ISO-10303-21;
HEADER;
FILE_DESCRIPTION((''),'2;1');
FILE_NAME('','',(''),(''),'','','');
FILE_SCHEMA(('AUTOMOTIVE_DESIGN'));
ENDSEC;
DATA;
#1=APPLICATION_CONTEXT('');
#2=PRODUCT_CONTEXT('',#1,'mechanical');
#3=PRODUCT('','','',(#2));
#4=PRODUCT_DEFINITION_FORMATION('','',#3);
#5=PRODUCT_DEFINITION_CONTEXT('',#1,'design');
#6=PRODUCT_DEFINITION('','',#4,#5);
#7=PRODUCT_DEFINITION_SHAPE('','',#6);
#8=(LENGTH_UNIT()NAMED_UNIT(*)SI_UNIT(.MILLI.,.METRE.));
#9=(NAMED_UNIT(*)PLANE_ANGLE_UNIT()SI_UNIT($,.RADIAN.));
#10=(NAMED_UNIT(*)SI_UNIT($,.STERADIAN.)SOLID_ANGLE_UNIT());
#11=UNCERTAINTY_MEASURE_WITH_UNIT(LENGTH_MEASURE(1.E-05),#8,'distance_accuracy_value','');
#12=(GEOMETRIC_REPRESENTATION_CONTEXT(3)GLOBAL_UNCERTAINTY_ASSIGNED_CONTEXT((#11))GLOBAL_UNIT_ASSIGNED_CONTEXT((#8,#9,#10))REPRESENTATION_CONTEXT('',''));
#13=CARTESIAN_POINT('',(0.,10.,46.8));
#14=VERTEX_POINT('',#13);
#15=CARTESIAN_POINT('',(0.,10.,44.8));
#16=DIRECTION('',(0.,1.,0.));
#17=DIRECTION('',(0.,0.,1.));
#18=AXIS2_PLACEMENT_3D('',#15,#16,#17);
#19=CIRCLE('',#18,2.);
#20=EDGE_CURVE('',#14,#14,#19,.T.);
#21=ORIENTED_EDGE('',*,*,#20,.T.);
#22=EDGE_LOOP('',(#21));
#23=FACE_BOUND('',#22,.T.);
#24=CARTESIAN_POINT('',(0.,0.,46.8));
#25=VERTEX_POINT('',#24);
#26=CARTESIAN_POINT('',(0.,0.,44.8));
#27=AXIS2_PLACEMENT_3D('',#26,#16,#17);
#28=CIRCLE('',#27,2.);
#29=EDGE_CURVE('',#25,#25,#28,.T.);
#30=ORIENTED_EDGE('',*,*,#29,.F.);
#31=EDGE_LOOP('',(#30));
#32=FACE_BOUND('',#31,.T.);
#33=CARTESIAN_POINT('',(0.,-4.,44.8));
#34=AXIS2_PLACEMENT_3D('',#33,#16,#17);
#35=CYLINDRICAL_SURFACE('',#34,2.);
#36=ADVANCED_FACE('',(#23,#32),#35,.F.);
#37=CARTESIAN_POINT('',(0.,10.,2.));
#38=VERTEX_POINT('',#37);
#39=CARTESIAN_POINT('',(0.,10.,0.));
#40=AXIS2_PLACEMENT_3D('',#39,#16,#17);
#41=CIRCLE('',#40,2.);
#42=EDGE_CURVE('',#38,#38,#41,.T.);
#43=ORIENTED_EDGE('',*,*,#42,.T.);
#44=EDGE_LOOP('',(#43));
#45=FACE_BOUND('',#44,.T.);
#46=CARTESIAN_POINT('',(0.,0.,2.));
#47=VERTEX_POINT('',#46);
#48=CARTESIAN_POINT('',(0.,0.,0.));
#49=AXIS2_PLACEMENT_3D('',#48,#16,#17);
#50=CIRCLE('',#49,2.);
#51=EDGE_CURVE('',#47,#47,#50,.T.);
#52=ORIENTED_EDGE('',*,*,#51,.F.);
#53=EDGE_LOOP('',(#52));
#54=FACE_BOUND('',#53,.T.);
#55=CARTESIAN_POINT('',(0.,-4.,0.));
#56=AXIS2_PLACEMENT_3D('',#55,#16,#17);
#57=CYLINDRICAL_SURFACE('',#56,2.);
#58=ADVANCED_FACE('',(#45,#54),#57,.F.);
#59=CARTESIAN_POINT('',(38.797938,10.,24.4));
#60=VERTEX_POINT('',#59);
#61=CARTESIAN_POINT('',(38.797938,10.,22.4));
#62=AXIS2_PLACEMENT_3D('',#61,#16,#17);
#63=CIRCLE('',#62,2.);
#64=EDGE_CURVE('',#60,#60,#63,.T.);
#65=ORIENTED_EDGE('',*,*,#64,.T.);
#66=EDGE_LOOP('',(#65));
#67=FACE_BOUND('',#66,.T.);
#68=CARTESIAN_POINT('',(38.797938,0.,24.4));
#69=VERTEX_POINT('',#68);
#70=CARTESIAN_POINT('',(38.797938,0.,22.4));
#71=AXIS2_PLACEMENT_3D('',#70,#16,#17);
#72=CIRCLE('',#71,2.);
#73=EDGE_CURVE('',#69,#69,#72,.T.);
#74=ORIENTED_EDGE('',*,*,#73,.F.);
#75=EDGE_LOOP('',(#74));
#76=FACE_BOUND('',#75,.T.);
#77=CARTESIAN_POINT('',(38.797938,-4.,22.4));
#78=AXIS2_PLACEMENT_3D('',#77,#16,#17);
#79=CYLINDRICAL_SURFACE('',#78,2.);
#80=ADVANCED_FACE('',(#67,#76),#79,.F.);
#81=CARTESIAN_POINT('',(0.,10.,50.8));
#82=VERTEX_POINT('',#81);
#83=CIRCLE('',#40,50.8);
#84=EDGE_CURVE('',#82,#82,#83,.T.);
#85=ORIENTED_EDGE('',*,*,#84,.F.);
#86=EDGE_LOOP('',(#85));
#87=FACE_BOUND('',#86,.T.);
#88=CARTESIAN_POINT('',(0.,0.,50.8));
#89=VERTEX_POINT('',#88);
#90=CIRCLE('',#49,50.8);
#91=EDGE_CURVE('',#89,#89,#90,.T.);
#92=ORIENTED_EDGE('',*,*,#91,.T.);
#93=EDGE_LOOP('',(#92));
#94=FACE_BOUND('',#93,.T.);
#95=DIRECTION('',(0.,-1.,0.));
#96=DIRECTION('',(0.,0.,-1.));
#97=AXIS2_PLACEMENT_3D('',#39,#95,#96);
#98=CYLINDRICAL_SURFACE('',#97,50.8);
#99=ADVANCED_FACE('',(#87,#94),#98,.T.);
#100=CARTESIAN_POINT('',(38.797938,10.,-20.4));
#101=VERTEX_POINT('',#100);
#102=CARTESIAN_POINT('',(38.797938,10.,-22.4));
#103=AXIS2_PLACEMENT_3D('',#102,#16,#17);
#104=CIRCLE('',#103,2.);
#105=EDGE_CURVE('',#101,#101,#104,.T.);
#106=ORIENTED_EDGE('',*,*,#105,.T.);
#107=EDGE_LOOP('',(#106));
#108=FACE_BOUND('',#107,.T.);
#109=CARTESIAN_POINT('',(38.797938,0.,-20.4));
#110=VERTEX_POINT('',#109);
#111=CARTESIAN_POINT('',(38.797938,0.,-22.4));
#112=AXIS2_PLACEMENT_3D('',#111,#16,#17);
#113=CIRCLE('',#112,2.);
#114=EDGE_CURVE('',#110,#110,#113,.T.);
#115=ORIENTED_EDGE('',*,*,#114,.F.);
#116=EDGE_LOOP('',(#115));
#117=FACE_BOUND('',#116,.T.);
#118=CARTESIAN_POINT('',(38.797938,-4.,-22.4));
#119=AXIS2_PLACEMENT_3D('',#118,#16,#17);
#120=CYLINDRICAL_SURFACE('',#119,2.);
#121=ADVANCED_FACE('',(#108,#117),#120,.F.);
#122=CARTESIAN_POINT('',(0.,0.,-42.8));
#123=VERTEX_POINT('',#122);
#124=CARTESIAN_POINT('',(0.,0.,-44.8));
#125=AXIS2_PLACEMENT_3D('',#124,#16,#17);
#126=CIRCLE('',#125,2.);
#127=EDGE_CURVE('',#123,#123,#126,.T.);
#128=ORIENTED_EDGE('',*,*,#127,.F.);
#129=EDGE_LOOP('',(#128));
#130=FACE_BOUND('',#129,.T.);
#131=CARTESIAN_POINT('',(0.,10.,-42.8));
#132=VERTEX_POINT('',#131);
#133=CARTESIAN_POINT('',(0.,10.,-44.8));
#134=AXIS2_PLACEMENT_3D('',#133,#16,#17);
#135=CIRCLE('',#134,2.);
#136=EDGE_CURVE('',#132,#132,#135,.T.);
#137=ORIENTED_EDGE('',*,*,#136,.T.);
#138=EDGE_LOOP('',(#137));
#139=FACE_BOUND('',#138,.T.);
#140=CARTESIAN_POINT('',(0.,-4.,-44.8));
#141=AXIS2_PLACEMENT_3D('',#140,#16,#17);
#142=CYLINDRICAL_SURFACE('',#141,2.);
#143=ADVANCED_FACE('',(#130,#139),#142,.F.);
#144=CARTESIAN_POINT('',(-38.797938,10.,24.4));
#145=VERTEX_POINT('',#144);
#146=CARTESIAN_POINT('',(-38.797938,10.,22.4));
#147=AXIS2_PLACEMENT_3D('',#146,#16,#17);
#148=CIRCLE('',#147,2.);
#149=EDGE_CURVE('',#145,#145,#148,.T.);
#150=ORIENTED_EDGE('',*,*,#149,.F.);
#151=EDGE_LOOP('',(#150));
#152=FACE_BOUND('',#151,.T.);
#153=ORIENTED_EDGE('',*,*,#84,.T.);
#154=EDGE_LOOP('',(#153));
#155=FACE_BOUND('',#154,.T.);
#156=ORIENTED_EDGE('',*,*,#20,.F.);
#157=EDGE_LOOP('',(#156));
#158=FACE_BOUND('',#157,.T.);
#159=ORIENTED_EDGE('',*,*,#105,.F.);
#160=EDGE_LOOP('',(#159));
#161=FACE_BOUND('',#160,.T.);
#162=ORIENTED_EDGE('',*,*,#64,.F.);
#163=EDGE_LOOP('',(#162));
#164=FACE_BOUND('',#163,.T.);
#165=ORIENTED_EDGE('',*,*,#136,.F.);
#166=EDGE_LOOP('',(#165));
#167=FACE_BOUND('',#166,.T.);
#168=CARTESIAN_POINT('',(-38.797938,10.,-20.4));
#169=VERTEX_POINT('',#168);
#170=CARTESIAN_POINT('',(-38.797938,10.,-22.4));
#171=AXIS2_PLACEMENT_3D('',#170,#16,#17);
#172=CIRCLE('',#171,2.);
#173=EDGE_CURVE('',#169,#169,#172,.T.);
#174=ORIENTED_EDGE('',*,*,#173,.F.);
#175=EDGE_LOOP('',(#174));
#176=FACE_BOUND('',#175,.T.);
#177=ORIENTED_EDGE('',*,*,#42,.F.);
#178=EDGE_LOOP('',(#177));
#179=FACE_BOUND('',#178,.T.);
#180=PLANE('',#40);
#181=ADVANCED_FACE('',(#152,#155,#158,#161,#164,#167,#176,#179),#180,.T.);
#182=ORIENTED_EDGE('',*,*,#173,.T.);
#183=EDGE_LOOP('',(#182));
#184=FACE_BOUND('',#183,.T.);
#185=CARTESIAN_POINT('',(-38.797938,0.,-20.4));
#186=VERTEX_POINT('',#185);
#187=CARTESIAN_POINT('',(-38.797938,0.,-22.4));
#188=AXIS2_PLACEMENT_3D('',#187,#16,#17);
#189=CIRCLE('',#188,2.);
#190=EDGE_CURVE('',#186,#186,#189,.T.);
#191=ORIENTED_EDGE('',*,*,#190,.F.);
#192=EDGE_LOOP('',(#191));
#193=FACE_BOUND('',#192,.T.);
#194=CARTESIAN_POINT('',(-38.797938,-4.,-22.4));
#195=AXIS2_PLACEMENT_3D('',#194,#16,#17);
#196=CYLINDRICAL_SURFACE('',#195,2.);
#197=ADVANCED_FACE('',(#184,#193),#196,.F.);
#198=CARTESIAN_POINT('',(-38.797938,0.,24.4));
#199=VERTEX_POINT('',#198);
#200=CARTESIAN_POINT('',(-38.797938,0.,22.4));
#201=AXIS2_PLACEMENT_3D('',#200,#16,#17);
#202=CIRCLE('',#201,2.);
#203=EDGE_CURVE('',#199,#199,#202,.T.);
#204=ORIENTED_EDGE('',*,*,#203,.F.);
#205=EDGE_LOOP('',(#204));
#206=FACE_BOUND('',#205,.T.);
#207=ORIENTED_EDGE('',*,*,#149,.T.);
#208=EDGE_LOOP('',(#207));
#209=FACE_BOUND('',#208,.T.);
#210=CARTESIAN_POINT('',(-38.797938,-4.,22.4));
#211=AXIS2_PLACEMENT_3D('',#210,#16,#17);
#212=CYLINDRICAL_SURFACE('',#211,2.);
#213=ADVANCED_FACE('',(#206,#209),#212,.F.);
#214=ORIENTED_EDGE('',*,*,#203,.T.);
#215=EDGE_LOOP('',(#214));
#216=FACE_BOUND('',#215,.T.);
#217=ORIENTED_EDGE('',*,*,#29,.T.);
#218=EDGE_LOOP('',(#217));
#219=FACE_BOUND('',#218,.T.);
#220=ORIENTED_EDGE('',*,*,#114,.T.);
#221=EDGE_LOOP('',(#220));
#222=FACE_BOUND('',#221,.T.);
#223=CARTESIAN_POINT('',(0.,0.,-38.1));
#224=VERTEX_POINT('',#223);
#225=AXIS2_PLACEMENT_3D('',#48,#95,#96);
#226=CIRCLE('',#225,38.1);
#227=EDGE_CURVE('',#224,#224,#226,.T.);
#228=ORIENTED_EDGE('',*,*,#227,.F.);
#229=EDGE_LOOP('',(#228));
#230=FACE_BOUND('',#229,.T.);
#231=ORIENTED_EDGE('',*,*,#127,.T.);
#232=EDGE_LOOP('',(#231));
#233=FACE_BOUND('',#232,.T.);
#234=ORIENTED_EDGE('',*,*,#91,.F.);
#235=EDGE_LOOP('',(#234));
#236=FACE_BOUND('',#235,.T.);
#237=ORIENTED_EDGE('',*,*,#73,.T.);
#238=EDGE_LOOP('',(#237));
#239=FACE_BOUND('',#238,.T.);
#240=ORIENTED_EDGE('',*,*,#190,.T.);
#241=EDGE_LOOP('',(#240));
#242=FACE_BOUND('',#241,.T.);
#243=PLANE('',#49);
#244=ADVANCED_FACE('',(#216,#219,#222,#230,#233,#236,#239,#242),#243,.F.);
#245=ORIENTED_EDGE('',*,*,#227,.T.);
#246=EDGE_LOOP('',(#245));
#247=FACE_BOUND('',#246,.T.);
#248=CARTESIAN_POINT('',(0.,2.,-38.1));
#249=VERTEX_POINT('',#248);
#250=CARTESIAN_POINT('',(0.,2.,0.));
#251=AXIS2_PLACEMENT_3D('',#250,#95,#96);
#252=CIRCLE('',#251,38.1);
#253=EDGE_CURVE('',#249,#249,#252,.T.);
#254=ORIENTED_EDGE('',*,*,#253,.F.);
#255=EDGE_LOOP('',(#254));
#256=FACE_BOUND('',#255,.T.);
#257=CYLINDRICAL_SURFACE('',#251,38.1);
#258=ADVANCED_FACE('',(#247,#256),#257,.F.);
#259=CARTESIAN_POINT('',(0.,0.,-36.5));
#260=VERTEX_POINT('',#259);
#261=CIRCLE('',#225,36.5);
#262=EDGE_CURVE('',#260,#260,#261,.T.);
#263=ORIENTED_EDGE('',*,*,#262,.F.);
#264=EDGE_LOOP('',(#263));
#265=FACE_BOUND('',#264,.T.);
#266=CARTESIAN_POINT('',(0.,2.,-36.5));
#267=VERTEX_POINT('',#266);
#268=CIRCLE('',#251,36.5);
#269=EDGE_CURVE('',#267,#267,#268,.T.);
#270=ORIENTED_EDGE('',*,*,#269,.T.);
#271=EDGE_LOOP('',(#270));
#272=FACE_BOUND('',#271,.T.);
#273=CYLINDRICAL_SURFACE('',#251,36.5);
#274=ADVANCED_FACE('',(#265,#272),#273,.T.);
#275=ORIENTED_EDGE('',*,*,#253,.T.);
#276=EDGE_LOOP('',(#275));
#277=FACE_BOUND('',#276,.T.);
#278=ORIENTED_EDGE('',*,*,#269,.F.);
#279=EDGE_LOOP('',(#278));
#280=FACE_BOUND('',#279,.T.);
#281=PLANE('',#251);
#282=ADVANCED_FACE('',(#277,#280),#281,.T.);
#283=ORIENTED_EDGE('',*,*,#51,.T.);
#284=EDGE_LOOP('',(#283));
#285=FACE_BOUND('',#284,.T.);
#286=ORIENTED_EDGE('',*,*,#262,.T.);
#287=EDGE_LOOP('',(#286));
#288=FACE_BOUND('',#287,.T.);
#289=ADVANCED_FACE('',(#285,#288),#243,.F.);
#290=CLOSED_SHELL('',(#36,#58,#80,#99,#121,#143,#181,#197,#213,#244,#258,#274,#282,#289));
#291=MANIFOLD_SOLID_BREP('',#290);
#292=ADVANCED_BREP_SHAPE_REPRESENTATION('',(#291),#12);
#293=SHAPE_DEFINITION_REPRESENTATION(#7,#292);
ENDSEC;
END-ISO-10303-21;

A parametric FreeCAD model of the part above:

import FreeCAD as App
import Part
import Sketcher

V = App.Vector
Q = App.Units.Quantity

doc = App.newDocument("Part")
body = doc.addObject("PartDesign::Body", "Body")

# Sketch on XZ plane
sketch1 = body.newObject("Sketcher::SketchObject", "Sketch")
sketch1.AttachmentSupport = (doc.getObject("XZ_Plane"), [""])
sketch1.MapMode = "FlatFace"
sketch1.addGeometry(Part.Circle(V(0, 0, 0), V(0, 0, 1), 50.8), False)
sketch1.addConstraint(Sketcher.Constraint("Coincident", 0, 3, -1, 1))
sketch1.addConstraint(Sketcher.Constraint("Diameter", 0, Q("101.6 mm")))
pad1 = body.newObject("PartDesign::Pad", "Pad")
pad1.Profile = sketch1
pad1.Length = 10
pad1.Reversed = True

# Sketch on XZ plane
sketch2 = body.newObject("Sketcher::SketchObject", "Sketch001")
sketch2.AttachmentSupport = (doc.getObject("XZ_Plane"), [""])
sketch2.MapMode = "FlatFace"
sketch2.addGeometry(Part.Circle(V(0, 0, 0), V(0, 0, 1), 38.1), False)
sketch2.addGeometry(Part.Circle(V(0, 0, 0), V(0, 0, 1), 36.5), False)
sketch2.addConstraint(Sketcher.Constraint("Coincident", 0, 3, -1, 1))
sketch2.addConstraint(Sketcher.Constraint("Coincident", 1, 3, -1, 1))
sketch2.addConstraint(Sketcher.Constraint("Diameter", 1, Q("73 mm")))
sketch2.addConstraint(Sketcher.Constraint("Diameter", 0, Q("76.2 mm")))
pocket1 = body.newObject("PartDesign::Pocket", "Pocket")
pocket1.Profile = sketch2
pocket1.Length = 2

# Sketch on XZ plane
sketch3 = body.newObject("Sketcher::SketchObject", "Sketch002")
sketch3.AttachmentSupport = (doc.getObject("XZ_Plane"), [""])
sketch3.MapMode = "FlatFace"
sketch3.AttachmentOffset = App.Placement(V(0, 0, -10), App.Rotation())
sketch3.addGeometry(Part.Circle(V(0, 0, 0), V(0, 0, 1), 2), False)
sketch3.addGeometry(Part.Circle(V(0, -44.8, 0), V(0, 0, 1), 2), False)
sketch3.addGeometry(Part.Circle(V(38.797938, -22.4, 0), V(0, 0, 1), 2), False)
sketch3.addGeometry(Part.Circle(V(38.797938, 22.4, 0), V(0, 0, 1), 2), False)
sketch3.addGeometry(Part.Circle(V(0, 44.8, 0), V(0, 0, 1), 2), False)
sketch3.addGeometry(Part.Circle(V(-38.797938, 22.4, 0), V(0, 0, 1), 2), False)
sketch3.addGeometry(Part.Circle(V(-38.797938, -22.4, 0), V(0, 0, 1), 2), False)
sketch3.addConstraint(Sketcher.Constraint("Coincident", 0, 3, -1, 1))
sketch3.addConstraint(Sketcher.Constraint("Equal", 0, 1))
sketch3.addConstraint(Sketcher.Constraint("Equal", 1, 2))
sketch3.addConstraint(Sketcher.Constraint("Equal", 2, 3))
sketch3.addConstraint(Sketcher.Constraint("Equal", 3, 4))
sketch3.addConstraint(Sketcher.Constraint("Equal", 4, 5))
sketch3.addConstraint(Sketcher.Constraint("Equal", 5, 6))
sketch3.addConstraint(Sketcher.Constraint("Symmetric", 1, 3, 4, 3, -1, 1))
sketch3.addConstraint(Sketcher.Constraint("Symmetric", 2, 3, 5, 3, -1, 1))
sketch3.addConstraint(Sketcher.Constraint("Symmetric", 3, 3, 6, 3, -1, 1))
sketch3.addConstraint(Sketcher.Constraint("Symmetric", 3, 3, 5, 3, -2))
sketch3.addConstraint(Sketcher.Constraint("PointOnObject", 1, 3, -2))
sketch3.addConstraint(Sketcher.Constraint("Diameter", 0, Q("4 mm")))
sketch3.addConstraint(Sketcher.Constraint("DistanceY", 1, 3, -1, 1, Q("44.8 mm")))
sketch3.addConstraint(Sketcher.Constraint("DistanceY", 2, 3, -1, 1, Q("22.4 mm")))
sketch3.addConstraint(Sketcher.Constraint("DistanceX", -1, 1, 2, 3, Q("38.797938 mm")))
pocket2 = body.newObject("PartDesign::Pocket", "Pocket001")
pocket2.Profile = sketch3
pocket2.Length = 14
pocket2.Reversed = True

doc.recompute()
